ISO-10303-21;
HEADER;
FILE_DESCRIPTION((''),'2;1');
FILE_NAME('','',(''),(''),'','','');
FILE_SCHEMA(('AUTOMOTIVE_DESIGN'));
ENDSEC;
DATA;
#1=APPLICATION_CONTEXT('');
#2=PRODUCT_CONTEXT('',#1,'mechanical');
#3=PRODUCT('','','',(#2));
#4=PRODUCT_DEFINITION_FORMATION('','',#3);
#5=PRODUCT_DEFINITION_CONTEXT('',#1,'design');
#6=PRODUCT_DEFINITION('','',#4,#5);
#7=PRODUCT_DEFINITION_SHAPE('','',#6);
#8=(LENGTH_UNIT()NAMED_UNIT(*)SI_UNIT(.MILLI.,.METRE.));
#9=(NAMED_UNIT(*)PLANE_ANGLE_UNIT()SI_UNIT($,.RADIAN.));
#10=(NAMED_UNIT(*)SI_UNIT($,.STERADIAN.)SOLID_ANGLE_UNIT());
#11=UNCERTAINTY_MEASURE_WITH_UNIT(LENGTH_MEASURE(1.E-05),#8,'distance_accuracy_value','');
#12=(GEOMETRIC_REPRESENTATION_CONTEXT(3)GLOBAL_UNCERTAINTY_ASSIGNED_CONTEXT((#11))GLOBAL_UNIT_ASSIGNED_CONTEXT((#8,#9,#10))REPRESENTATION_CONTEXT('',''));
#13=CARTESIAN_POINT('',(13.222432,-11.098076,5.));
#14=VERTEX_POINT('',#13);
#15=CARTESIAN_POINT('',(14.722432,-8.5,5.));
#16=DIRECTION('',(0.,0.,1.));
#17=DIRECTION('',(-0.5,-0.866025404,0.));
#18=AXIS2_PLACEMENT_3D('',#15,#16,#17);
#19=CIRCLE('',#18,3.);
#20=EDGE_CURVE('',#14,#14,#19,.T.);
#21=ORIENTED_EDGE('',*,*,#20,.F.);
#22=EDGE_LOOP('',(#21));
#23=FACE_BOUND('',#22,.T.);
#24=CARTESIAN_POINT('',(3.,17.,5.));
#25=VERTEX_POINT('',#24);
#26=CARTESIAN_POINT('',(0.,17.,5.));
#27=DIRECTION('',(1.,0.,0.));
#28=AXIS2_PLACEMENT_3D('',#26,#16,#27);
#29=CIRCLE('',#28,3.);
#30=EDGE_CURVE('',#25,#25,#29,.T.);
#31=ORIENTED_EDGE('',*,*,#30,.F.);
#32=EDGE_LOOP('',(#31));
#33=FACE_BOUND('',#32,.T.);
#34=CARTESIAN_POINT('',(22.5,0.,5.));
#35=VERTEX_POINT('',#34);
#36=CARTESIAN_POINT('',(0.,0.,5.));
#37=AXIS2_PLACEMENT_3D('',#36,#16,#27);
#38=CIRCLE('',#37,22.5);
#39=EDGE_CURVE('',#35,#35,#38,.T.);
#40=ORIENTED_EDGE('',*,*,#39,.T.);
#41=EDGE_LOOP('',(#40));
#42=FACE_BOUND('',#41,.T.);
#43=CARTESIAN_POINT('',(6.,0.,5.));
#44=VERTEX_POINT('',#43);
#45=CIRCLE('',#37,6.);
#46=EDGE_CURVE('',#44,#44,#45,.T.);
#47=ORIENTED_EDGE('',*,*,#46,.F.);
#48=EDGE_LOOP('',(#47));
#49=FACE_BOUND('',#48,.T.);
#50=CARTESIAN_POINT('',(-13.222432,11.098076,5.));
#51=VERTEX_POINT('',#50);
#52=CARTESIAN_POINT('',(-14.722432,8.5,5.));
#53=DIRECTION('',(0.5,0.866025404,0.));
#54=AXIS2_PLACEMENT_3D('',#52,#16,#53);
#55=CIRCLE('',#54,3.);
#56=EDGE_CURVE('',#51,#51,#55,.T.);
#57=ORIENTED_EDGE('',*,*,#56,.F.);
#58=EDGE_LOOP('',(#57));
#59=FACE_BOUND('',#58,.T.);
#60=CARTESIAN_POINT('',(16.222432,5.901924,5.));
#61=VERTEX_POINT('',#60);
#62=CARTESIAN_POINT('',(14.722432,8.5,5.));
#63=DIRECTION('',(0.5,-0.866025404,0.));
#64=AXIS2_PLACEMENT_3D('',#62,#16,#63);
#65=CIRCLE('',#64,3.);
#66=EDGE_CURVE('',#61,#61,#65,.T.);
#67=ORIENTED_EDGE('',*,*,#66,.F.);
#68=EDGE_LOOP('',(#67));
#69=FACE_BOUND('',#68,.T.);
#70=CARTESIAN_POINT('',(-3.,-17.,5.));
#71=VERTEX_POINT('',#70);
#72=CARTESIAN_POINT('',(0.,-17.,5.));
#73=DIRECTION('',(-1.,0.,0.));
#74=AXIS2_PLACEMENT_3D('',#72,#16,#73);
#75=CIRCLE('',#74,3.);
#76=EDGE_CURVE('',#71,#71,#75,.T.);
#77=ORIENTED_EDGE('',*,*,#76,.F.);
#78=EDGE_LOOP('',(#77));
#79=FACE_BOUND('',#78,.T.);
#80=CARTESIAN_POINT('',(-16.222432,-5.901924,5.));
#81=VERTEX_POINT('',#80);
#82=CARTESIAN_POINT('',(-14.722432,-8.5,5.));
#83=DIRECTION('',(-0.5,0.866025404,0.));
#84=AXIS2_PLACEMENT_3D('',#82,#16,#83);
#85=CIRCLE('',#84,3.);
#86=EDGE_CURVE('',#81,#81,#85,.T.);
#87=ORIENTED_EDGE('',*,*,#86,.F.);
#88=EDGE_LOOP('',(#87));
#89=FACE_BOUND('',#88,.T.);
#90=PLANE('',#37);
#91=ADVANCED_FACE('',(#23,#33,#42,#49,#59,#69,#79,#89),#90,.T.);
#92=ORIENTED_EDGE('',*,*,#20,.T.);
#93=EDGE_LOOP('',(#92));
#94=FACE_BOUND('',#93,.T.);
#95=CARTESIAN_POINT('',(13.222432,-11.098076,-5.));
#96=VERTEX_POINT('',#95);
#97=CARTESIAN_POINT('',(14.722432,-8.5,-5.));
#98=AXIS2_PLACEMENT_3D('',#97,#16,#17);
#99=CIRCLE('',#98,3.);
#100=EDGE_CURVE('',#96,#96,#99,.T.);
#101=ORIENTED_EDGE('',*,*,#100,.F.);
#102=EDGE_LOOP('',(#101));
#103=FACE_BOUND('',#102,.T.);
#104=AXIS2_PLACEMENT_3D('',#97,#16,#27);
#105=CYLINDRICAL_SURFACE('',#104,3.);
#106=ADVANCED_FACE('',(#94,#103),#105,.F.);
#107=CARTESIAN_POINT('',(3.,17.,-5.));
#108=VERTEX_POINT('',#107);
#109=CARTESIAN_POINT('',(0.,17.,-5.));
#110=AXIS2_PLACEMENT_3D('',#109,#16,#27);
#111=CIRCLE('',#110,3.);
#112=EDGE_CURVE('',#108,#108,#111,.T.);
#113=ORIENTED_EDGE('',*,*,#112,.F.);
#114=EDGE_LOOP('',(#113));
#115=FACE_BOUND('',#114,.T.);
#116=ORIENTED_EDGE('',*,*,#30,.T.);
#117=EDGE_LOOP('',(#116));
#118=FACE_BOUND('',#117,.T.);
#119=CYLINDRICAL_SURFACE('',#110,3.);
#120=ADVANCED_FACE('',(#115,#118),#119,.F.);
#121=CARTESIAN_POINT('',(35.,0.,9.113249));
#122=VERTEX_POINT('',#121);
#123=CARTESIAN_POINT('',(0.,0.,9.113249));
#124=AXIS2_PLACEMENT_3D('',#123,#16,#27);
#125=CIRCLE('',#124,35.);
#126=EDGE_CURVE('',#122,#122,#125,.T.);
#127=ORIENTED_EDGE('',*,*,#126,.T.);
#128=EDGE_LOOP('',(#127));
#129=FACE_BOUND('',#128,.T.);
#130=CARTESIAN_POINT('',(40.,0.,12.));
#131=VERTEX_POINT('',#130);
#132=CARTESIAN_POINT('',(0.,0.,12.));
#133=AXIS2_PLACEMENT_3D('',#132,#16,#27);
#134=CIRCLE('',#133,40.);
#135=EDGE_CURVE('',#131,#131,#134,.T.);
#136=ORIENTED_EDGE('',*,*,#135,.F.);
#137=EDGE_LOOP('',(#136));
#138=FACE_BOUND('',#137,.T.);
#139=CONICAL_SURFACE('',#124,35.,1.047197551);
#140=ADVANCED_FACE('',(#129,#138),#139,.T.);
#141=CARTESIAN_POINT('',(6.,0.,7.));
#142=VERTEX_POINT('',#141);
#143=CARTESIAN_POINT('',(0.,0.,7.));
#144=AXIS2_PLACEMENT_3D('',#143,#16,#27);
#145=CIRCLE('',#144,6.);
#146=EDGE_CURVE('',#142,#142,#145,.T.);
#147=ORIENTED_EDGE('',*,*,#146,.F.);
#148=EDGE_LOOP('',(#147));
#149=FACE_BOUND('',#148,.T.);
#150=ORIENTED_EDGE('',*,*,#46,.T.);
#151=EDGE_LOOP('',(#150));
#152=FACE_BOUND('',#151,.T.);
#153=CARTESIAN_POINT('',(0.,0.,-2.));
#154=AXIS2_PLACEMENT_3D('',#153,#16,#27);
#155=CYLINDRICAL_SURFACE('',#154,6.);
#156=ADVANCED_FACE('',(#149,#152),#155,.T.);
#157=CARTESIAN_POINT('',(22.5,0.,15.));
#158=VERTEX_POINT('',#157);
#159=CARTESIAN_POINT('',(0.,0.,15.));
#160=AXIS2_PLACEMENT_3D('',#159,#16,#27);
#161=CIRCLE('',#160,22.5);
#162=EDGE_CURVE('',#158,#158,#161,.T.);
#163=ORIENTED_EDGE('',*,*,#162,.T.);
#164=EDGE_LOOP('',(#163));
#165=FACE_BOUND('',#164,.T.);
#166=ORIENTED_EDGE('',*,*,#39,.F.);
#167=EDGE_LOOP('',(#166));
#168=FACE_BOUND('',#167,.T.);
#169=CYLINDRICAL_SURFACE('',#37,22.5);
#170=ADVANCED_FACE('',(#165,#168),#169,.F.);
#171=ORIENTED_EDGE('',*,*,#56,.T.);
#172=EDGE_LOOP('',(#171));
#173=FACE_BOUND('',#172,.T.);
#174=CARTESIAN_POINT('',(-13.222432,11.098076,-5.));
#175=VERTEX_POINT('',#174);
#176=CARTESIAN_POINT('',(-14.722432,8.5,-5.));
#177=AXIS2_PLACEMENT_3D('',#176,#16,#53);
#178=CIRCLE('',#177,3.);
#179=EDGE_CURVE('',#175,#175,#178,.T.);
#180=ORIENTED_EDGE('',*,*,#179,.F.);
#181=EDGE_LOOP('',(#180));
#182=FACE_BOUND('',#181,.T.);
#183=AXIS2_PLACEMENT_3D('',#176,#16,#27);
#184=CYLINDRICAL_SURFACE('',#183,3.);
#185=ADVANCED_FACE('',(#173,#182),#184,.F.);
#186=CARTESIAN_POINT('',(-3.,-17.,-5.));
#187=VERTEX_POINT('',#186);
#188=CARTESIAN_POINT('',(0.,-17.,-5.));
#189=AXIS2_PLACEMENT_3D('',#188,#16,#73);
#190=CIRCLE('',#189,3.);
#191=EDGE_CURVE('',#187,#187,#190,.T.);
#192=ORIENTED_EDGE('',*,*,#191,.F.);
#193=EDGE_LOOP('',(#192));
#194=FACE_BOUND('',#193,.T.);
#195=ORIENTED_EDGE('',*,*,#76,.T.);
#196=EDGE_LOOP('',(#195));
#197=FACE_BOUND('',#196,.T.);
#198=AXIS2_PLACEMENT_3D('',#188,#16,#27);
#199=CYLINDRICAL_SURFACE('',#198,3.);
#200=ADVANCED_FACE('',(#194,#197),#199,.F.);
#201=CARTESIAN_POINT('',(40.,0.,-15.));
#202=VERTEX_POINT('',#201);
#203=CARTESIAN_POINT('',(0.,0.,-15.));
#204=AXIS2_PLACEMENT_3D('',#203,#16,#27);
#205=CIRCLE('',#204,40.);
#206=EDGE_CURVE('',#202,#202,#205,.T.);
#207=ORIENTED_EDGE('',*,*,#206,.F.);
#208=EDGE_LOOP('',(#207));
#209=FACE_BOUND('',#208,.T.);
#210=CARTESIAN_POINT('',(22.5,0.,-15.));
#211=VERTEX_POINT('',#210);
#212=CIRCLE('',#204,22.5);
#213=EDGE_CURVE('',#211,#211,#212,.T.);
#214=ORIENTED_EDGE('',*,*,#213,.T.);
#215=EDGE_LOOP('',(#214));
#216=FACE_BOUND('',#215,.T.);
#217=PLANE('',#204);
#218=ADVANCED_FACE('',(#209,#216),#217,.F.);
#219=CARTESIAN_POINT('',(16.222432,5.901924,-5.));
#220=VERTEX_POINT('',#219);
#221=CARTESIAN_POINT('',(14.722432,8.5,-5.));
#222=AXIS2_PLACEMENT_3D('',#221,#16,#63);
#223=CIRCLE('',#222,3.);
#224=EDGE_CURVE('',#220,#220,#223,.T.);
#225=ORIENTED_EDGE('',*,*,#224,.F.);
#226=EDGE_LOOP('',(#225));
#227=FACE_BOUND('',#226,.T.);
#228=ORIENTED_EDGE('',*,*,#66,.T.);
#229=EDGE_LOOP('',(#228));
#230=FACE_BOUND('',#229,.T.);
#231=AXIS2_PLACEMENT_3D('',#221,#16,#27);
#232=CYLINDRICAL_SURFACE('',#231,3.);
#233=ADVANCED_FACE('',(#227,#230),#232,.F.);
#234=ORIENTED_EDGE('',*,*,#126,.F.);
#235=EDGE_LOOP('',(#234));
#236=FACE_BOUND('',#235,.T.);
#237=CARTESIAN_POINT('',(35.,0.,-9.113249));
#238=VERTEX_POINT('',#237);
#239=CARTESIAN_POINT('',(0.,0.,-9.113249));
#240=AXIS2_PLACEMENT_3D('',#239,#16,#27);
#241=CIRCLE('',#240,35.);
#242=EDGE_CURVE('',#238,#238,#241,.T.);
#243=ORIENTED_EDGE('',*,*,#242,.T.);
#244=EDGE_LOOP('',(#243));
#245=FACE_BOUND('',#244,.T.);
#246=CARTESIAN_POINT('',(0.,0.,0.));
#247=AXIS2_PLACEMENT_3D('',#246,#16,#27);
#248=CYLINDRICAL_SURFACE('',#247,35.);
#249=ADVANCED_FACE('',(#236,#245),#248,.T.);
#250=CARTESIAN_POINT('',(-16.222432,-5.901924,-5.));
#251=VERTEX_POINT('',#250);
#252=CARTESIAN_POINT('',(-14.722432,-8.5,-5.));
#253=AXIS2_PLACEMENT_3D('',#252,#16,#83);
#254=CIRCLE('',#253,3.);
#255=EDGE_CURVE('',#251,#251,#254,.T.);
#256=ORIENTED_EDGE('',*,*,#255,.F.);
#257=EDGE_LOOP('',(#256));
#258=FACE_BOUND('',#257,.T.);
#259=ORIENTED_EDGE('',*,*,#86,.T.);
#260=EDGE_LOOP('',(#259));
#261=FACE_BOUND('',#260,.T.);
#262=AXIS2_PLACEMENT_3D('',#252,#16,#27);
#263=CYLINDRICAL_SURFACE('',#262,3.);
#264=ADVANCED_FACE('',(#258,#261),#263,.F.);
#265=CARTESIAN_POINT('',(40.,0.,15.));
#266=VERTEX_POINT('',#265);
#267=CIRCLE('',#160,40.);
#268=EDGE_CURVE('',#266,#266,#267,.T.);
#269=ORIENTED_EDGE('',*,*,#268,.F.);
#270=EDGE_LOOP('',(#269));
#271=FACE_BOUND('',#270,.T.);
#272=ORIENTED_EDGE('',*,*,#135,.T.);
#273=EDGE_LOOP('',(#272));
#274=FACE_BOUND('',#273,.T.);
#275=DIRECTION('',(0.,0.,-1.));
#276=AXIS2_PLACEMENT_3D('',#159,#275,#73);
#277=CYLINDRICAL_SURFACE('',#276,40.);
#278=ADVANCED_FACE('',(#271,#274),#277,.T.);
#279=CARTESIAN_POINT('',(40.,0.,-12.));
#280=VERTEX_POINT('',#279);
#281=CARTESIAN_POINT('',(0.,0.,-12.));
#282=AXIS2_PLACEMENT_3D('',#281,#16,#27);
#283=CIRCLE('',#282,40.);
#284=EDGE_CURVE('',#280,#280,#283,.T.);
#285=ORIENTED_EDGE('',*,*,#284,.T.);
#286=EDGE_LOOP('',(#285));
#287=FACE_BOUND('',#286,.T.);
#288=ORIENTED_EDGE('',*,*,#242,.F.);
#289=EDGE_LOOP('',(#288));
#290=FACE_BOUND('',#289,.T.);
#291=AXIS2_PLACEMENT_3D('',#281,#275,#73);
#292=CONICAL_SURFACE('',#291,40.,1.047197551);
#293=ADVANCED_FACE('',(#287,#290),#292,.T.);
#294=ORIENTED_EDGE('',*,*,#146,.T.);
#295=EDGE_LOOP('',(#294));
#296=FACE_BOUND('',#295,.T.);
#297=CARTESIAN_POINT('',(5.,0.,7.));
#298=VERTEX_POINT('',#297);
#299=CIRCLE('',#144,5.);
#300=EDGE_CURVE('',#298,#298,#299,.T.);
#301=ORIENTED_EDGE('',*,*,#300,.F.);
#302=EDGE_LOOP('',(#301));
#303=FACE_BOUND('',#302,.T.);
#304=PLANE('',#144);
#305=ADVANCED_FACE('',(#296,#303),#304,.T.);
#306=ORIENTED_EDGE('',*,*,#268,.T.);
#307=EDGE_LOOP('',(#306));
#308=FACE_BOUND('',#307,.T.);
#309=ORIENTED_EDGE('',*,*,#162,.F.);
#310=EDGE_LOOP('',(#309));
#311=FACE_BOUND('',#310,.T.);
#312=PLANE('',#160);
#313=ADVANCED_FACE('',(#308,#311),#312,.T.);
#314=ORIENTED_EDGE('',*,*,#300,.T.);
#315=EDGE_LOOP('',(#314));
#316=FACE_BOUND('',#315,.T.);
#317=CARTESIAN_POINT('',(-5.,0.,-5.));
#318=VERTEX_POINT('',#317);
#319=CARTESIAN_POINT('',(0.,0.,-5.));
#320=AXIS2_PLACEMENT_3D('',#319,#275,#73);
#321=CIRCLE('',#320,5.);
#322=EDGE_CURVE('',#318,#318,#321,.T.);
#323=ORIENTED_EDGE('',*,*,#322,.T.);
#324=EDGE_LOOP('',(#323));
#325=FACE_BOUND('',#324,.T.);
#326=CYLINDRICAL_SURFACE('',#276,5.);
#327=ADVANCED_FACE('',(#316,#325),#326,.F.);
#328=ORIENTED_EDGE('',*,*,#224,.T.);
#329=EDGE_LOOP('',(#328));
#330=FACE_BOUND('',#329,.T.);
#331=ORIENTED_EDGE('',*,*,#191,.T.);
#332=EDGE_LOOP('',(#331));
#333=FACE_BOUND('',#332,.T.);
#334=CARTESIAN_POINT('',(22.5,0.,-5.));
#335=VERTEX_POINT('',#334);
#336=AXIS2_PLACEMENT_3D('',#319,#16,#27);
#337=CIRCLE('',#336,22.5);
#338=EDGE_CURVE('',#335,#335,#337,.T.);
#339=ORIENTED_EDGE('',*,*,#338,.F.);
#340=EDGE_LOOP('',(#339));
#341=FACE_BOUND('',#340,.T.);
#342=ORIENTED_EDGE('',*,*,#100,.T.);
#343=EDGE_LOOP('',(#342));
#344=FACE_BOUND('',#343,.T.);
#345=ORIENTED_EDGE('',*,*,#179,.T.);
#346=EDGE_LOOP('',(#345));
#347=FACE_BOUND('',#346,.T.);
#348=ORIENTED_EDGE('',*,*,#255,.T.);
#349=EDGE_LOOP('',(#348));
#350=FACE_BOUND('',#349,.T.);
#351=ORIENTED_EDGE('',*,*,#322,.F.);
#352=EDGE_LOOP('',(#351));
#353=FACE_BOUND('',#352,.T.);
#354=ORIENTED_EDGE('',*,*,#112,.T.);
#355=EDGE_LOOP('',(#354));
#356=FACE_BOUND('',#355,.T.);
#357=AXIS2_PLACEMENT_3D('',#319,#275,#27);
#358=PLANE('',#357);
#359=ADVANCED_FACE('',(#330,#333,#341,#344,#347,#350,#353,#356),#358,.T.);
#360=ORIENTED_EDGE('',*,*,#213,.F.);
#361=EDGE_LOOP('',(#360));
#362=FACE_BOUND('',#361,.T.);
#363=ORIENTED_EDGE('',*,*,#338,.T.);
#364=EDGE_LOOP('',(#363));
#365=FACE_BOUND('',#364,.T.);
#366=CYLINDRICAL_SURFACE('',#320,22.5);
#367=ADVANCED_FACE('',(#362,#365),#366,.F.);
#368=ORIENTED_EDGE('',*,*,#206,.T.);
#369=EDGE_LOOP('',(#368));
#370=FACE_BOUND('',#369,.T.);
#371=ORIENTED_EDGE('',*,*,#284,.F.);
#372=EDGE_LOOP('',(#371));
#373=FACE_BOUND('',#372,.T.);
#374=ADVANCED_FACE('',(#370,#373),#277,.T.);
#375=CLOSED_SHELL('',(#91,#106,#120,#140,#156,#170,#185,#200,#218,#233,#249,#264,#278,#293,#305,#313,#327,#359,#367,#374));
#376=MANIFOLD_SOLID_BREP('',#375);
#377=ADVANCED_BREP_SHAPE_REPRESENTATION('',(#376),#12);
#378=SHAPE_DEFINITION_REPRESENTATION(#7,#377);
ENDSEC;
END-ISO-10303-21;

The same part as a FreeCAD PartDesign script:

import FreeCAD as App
import Part
import Sketcher
from FreeCAD import Vector
Q = App.Units.Quantity


def add_polygon(sketch, points):
    """Adds a closed chain of lines whose ends are joined by coincident constraints."""
    first, n = sketch.GeometryCount, len(points)
    for a, b in zip(points, points[1:] + points[:1]):
        sketch.addGeometry(Part.LineSegment(App.Vector(*a, 0), App.Vector(*b, 0)), False)
    for i in range(n):
        sketch.addConstraint(Sketcher.Constraint("Coincident", first + i, 2, first + (i + 1) % n, 1))

doc = App.newDocument("Part")
body = doc.addObject("PartDesign::Body", "Body")

sketch1 = body.newObject("Sketcher::SketchObject", "Sketch")
sketch1.AttachmentSupport = (doc.getObject("XY_Plane"), [""])
sketch1.MapMode = "FlatFace"
sketch1.addGeometry([
    Part.Circle(Vector(0, 0, 0), Vector(0, 0, 1), 40),
    Part.Circle(Vector(0, 0, 0), Vector(0, 0, 1), 5),
], False)
sketch1.addConstraint([
    Sketcher.Constraint("Coincident", 0, 3, -1, 1),
    Sketcher.Constraint("Coincident", 1, 3, -1, 1),
    Sketcher.Constraint("Diameter", 0, 80.0),
    Sketcher.Constraint("Diameter", 1, 10.0),
])
pad1 = body.newObject("PartDesign::Pad", "Pad")
pad1.Profile = sketch1
pad1.Length = 30
pad1.Midplane = True

sketch2 = body.newObject("Sketcher::SketchObject", "Sketch001")
sketch2.AttachmentSupport = (doc.getObject("XY_Plane"), [""])
sketch2.MapMode = "FlatFace"
sketch2.AttachmentOffset = App.Placement(Vector(0, 0, 15), App.Rotation())
sketch2.addGeometry(Part.Circle(Vector(0, 0, 0), Vector(0, 0, 1), 22), False)
sketch2.addConstraint([
    Sketcher.Constraint("Coincident", 0, 3, -1, 1),
    Sketcher.Constraint("Diameter", 0, 45.0),
])
pocket1 = body.newObject("PartDesign::Pocket", "Pocket")
pocket1.Profile = sketch2
pocket1.Length = 10
doc.recompute()

mirrored = body.newObject("PartDesign::Mirrored", "Mirrored")
mirrored.Originals = [pocket1]
mirrored.MirrorPlane = (doc.getObject("XY_Plane"), [""])
body.Tip = mirrored

sketch3 = body.newObject("Sketcher::SketchObject", "Sketch002")
sketch3.AttachmentSupport = (doc.getObject("XY_Plane"), [""])
sketch3.MapMode = "FlatFace"
sketch3.AttachmentOffset = App.Placement(Vector(0, 0, 5), App.Rotation())
sketch3.addGeometry(Part.Circle(Vector(0, 17, 0), Vector(0, 0, 1), 3), False)
sketch3.addConstraint([
    Sketcher.Constraint("PointOnObject", 0, 3, -2),
    Sketcher.Constraint("Diameter", 0, 6.0),
    Sketcher.Constraint("DistanceY", -1, 1, 0, 3, 17.0),
])
pocket2 = body.newObject("PartDesign::Pocket", "Pocket001")
pocket2.Profile = sketch3
pocket2.Length = 10
doc.recompute()

polarpattern = body.newObject("PartDesign::PolarPattern", "PolarPattern")
polarpattern.Originals = [pocket2]
polarpattern.Axis = (doc.getObject("Z_Axis"), [""])
polarpattern.Angle = 360
polarpattern.Occurrences = 6
body.Tip = polarpattern

sketch4 = body.newObject("Sketcher::SketchObject", "Sketch003")
sketch4.AttachmentSupport = (doc.getObject("XY_Plane"), [""])
sketch4.MapMode = "FlatFace"
sketch4.AttachmentOffset = App.Placement(Vector(0, 0, 5), App.Rotation())
sketch4.addGeometry([
    Part.Circle(Vector(0, 0, 0), Vector(0, 0, 1), 6),
    Part.Circle(Vector(0, 0, 0), Vector(0, 0, 1), 5),
], False)
sketch4.addConstraint([
    Sketcher.Constraint("Coincident", 0, 3, -1, 1),
    Sketcher.Constraint("Coincident", 1, 3, -1, 1),
    Sketcher.Constraint("Diameter", 0, 12.0),
    Sketcher.Constraint("Diameter", 1, 10.0),
])
pad2 = body.newObject("PartDesign::Pad", "Pad001")
pad2.Profile = sketch4
pad2.Type = "TwoLengths"
pad2.Length = 2
pad2.Length2 = 7

sketch5 = body.newObject("Sketcher::SketchObject", "Sketch004")
sketch5.AttachmentSupport = (doc.getObject("XZ_Plane"), [""])
sketch5.MapMode = "FlatFace"
add_polygon(sketch5, [(40, -12), (35, -9), (35, 9), (40, 12)])
sketch5.addConstraint([
    Sketcher.Constraint("Vertical", 1),
    Sketcher.Constraint("Vertical", 3),
    Sketcher.Constraint("Equal", 0, 2),
    Sketcher.Constraint("DistanceY", 3, 2, 3, 1, 24.0),
    Sketcher.Constraint("Angle", 0, Q("150 deg")),
    Sketcher.Constraint("DistanceX", -1, 1, 0, 2, 35.0),
    Sketcher.Constraint("DistanceX", -1, 1, 2, 2, 40.0),
    Sketcher.Constraint("DistanceY", -1, 1, 2, 2, 12.0),
])
groove = body.newObject("PartDesign::Groove", "Groove")
groove.Profile = sketch5
groove.ReferenceAxis = (sketch5, ["V_Axis"])
groove.Angle = 360

doc.recompute()
